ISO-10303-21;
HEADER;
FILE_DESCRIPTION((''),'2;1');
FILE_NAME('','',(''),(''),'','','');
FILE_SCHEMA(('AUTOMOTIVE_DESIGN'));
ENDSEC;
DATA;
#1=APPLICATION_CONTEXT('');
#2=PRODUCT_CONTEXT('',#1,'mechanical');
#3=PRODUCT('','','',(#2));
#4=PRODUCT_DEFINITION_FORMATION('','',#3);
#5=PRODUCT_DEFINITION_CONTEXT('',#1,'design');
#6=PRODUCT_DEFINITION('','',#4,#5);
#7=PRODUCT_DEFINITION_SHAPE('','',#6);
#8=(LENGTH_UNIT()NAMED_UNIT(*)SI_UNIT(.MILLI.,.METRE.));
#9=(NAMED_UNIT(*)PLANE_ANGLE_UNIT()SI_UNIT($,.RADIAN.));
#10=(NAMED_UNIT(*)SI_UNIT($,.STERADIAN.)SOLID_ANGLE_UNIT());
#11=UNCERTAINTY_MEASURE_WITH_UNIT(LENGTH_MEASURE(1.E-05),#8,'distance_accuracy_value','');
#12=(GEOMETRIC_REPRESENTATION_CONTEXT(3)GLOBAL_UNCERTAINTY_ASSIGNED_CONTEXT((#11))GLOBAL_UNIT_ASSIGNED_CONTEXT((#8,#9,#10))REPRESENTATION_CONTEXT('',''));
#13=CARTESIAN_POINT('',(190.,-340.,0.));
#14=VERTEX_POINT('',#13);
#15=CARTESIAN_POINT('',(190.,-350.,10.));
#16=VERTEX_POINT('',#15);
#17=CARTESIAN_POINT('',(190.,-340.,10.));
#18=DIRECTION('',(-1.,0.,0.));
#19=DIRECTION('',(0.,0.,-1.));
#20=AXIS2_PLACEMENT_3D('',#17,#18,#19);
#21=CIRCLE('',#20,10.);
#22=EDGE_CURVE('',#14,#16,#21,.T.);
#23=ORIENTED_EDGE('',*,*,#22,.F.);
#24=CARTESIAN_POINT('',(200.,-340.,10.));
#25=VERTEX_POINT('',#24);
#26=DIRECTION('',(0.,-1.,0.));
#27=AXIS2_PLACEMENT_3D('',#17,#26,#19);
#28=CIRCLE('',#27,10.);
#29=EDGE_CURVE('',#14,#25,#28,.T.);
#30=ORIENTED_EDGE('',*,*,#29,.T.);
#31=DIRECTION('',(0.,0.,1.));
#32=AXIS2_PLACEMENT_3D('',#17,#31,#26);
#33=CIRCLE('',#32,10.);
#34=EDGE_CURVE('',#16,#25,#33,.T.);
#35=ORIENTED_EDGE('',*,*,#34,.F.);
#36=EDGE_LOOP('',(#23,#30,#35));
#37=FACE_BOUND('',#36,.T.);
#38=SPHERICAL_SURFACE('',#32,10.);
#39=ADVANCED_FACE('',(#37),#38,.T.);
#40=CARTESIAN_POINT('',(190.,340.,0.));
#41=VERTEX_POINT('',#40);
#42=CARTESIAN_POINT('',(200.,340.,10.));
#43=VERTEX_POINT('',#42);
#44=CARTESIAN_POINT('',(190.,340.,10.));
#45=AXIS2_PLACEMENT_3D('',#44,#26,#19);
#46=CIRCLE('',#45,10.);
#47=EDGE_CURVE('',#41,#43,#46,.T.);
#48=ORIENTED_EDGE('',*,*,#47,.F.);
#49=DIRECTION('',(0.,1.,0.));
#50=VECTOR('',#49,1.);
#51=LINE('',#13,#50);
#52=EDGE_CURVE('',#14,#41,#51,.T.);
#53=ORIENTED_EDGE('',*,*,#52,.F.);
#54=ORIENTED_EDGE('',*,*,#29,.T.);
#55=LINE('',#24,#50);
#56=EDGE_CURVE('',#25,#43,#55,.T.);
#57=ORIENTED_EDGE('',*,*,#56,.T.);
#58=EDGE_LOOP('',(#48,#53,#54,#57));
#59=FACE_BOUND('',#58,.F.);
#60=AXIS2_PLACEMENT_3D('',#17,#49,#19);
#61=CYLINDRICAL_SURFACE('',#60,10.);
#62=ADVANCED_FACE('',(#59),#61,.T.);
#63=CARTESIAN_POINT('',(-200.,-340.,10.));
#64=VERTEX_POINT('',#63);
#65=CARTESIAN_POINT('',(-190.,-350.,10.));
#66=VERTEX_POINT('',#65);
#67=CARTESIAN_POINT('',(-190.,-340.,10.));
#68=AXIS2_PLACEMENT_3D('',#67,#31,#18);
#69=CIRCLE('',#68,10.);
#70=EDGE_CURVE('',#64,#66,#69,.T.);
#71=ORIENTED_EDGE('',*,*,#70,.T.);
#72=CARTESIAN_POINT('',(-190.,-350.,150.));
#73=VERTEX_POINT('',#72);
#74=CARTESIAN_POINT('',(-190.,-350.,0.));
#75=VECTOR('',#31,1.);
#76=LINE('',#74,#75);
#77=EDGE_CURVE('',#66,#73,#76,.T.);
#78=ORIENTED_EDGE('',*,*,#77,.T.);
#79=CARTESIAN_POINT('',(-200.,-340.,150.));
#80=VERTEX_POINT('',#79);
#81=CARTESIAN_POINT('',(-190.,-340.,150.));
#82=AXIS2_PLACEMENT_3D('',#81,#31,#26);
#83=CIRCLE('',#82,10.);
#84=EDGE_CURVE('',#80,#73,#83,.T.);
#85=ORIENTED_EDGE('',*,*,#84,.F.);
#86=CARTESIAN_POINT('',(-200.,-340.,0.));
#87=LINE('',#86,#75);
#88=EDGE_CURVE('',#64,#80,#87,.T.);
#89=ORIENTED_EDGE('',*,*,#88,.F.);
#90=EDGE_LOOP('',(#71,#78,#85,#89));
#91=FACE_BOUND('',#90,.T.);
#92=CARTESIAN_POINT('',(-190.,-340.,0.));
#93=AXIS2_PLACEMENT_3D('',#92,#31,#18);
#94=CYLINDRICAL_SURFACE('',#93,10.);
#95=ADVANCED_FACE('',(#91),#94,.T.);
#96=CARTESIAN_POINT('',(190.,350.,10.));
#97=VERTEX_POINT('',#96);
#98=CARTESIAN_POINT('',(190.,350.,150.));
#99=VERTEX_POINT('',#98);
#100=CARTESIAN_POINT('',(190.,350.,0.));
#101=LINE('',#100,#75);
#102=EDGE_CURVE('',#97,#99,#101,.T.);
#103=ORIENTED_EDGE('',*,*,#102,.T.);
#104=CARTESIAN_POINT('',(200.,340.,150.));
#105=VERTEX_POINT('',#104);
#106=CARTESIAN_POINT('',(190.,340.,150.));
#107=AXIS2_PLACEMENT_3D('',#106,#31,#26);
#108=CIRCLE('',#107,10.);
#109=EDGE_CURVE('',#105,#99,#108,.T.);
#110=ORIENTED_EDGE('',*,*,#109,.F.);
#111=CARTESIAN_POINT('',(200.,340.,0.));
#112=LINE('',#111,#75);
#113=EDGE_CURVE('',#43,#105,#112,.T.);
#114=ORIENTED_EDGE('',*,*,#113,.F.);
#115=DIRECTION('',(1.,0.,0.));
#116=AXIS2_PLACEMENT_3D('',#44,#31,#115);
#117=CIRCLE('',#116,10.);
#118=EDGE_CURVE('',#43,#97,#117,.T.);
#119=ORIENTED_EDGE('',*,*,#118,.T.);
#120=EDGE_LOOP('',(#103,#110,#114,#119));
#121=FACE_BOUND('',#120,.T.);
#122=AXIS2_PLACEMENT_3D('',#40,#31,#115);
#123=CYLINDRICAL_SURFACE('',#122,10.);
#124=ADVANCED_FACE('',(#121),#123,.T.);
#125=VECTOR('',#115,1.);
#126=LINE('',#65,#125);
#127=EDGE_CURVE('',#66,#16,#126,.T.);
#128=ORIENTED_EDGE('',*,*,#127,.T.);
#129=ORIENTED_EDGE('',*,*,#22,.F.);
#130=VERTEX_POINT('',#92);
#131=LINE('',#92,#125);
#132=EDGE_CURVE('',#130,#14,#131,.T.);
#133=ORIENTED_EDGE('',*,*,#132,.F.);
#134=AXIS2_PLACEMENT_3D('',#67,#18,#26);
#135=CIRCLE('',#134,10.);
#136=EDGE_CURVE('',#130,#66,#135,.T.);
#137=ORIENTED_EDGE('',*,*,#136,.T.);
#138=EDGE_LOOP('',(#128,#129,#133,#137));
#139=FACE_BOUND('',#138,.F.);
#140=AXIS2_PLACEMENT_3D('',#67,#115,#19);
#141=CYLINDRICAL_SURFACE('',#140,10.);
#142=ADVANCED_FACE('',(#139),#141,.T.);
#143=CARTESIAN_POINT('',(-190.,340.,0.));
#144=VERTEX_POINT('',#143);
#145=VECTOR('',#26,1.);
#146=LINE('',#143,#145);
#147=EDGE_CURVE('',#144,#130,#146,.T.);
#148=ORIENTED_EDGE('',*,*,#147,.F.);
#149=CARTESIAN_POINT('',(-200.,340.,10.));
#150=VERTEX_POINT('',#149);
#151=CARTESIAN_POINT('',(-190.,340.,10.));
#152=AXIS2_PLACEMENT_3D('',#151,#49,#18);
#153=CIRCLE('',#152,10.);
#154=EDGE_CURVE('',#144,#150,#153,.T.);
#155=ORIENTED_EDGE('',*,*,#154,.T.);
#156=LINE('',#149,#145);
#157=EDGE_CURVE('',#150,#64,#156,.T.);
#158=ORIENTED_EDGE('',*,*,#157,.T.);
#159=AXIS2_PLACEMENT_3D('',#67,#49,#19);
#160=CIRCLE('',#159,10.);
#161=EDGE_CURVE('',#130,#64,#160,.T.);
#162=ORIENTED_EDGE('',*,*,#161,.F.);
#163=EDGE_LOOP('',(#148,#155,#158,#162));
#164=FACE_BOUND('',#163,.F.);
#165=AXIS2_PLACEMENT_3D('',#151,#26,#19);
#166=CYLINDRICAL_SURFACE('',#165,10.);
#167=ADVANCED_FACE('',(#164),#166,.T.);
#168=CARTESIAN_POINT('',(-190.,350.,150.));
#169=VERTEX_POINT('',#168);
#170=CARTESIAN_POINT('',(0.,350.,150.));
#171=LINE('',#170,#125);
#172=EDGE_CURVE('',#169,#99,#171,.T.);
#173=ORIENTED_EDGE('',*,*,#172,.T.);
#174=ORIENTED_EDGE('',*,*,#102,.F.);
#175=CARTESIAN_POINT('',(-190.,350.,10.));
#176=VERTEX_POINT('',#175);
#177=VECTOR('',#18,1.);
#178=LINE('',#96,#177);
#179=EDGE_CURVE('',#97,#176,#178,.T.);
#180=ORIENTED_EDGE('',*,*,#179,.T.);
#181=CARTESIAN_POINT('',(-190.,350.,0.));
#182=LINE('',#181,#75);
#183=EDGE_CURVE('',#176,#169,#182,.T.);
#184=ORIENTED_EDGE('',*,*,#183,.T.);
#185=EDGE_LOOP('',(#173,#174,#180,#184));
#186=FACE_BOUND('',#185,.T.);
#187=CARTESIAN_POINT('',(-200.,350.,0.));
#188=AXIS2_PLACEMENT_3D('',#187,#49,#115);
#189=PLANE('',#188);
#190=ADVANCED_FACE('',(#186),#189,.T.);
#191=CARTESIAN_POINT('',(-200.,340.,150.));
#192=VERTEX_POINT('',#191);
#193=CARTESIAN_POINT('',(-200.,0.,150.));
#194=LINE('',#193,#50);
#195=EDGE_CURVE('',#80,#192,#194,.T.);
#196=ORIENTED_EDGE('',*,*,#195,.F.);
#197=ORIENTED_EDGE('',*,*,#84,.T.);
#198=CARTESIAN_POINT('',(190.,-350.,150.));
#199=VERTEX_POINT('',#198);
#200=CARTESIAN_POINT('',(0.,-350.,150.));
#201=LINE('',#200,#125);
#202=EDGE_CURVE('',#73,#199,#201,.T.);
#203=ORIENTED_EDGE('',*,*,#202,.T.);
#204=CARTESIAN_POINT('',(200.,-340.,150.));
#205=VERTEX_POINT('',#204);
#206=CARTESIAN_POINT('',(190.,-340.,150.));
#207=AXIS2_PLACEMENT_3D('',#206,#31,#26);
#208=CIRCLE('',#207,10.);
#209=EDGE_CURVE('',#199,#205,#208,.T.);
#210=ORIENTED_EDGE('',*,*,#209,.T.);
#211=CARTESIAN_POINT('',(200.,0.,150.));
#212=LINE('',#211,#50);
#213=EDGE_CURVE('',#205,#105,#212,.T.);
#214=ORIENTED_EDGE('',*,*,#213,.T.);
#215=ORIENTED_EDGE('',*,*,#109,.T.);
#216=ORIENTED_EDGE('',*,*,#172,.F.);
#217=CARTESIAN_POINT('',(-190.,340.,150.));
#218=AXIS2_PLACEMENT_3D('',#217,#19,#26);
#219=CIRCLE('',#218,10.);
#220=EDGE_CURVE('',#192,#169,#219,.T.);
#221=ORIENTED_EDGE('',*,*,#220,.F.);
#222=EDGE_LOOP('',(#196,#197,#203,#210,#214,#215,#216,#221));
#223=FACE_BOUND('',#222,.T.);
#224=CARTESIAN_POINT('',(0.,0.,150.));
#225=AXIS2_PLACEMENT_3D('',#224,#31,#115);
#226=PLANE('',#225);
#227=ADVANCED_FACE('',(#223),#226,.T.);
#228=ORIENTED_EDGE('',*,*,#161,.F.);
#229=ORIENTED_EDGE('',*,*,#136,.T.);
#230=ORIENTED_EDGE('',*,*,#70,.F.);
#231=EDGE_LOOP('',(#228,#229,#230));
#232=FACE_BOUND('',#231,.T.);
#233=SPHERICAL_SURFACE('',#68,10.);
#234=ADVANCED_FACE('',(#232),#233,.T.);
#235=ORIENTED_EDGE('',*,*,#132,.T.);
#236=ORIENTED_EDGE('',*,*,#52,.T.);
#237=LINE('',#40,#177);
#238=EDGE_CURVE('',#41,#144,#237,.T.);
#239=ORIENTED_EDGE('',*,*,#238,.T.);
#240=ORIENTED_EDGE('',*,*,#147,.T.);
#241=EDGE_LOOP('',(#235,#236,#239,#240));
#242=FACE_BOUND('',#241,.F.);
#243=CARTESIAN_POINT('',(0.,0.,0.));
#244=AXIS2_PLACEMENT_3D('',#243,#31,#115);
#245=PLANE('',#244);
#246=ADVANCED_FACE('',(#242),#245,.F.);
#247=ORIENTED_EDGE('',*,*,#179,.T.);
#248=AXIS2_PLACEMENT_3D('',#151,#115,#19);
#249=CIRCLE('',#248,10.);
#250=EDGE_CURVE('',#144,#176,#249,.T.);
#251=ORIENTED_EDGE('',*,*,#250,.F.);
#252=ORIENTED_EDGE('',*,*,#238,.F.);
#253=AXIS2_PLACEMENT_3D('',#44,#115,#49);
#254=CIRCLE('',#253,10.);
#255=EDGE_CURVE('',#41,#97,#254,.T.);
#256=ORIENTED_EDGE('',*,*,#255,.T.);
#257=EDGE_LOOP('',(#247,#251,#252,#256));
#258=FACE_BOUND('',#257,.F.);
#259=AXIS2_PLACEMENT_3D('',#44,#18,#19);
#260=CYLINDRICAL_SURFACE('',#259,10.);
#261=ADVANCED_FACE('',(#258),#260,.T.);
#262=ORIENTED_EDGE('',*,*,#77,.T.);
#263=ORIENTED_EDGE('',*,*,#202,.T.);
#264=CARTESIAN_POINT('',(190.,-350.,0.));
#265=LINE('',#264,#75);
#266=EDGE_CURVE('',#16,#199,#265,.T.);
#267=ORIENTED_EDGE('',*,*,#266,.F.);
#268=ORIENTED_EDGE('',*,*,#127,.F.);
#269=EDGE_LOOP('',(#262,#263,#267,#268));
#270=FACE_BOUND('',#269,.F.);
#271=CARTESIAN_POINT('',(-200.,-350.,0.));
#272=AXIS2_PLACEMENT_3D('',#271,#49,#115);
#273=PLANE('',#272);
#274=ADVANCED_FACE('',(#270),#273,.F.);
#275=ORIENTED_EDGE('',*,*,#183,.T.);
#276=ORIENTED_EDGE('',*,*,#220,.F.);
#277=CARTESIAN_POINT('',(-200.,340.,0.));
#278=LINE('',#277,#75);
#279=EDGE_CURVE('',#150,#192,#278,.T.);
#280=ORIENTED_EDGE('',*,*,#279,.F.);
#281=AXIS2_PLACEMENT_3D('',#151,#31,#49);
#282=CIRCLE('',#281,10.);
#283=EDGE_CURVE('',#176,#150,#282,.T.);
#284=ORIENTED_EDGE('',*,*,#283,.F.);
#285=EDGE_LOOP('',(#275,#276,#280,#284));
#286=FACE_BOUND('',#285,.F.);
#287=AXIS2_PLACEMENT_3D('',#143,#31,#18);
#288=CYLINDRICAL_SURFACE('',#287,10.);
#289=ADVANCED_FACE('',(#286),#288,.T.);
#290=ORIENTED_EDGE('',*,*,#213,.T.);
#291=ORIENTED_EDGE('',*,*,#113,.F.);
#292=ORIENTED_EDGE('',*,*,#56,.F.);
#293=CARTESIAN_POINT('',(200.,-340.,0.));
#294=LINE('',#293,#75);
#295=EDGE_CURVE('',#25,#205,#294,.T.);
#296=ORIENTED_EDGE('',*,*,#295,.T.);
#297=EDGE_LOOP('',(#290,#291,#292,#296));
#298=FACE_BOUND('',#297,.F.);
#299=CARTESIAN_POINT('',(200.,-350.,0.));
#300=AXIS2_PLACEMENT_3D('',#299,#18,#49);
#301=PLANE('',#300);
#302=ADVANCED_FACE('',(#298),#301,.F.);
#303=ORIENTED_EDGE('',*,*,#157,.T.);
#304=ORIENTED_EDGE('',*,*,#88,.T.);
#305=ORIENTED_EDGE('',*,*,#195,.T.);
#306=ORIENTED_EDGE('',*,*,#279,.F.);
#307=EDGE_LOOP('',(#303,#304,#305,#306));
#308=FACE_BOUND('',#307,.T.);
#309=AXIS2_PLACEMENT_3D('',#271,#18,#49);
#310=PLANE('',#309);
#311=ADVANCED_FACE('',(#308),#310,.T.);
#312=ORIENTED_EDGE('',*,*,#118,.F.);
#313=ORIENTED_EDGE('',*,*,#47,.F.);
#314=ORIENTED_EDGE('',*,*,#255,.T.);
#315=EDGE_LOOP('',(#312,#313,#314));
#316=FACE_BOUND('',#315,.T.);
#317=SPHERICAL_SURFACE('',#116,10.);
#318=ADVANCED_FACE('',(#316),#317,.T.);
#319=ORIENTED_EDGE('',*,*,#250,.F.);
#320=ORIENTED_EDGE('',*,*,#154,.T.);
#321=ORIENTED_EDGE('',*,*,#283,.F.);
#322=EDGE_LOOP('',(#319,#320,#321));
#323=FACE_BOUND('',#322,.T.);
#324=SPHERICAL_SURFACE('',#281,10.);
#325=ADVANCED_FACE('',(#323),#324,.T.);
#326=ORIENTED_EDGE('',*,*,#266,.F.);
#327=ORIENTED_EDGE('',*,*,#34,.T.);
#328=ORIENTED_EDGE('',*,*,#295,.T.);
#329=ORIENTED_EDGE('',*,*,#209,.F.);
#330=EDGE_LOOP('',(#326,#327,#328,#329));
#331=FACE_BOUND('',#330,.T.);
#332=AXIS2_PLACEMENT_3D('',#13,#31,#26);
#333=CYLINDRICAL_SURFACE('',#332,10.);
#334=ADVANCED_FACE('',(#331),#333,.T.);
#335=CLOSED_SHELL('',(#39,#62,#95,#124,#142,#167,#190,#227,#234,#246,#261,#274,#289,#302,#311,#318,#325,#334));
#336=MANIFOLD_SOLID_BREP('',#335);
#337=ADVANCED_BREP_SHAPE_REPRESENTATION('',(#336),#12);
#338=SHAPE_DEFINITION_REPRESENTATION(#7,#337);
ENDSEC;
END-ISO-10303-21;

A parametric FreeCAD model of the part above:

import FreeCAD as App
import Part
import Sketcher

V = App.Vector
Q = App.Units.Quantity


def edges_at(feature, points):
    """Names of the edges that pass closest to the given points."""
    edges = feature.Shape.Edges
    near = lambda p: min(range(len(edges)), key=lambda i: edges[i].distToShape(Part.Vertex(*p))[0])
    return sorted({f"Edge{near(p) + 1}" for p in points})


def add_polygon(sketch, points):
    """Adds a closed chain of lines whose ends are joined by coincident constraints."""
    first, n = sketch.GeometryCount, len(points)
    for a, b in zip(points, points[1:] + points[:1]):
        sketch.addGeometry(Part.LineSegment(App.Vector(*a, 0), App.Vector(*b, 0)), False)
    for i in range(n):
        sketch.addConstraint(Sketcher.Constraint("Coincident", first + i, 2, first + (i + 1) % n, 1))

doc = App.newDocument("Part")
params = doc.addObject("Spreadsheet::Sheet", "Params")
for row, (alias, value) in enumerate([
    ("sketch1_width", "400 mm"),
    ("sketch1_height", "700 mm"),
    ("pad1_length", "150 mm"),
    ("fillet_radius", "10 mm"),
    ("fillet2_radius", "10 mm"),
], start=1):
    params.set(f"A{row}", alias)
    params.set(f"B{row}", "=" + value)
    params.setAlias(f"B{row}", alias)

body = doc.addObject("PartDesign::Body", "Body")

sketch1 = body.newObject("Sketcher::SketchObject", "Sketch")
sketch1.AttachmentSupport = (doc.getObject("XY_Plane"), [""])
sketch1.MapMode = "FlatFace"
add_polygon(sketch1, [(-200, 350), (-200, -350), (200, -350), (200, 350)])
sketch1.addConstraint(Sketcher.Constraint("Vertical", 0))
sketch1.addConstraint(Sketcher.Constraint("Horizontal", 1))
sketch1.addConstraint(Sketcher.Constraint("Vertical", 2))
sketch1.addConstraint(Sketcher.Constraint("Horizontal", 3))
sketch1.addConstraint(Sketcher.Constraint("Symmetric", 0, 2, 2, 2, -1, 1))
sketch1.addConstraint(Sketcher.Constraint("DistanceX", 1, 1, 1, 2, Q("400 mm")))
sketch1.addConstraint(Sketcher.Constraint("DistanceY", 0, 2, 0, 1, Q("700 mm")))
sketch1.setExpression("Constraints[9]", "Params.sketch1_width")
sketch1.setExpression("Constraints[10]", "Params.sketch1_height")
pad1 = body.newObject("PartDesign::Pad", "Pad")
pad1.Profile = sketch1
pad1.setExpression("Length", "Params.pad1_length")
doc.recompute()

fillet = body.newObject("PartDesign::Fillet", "Fillet")
fillet.Base = (pad1, edges_at(pad1, [
    (200, 350, 75),
    (200, -350, 75),
    (-200, -350, 75),
    (-200, 350, 75),
]))
fillet.setExpression("Radius", "Params.fillet_radius")
doc.recompute()

fillet2 = body.newObject("PartDesign::Fillet", "Fillet001")
fillet2.Base = (fillet, edges_at(fillet, [(200, 0, 0), (0, 350, 0), (-200, 0, 0)]))
fillet2.setExpression("Radius", "Params.fillet2_radius")

doc.recompute()
